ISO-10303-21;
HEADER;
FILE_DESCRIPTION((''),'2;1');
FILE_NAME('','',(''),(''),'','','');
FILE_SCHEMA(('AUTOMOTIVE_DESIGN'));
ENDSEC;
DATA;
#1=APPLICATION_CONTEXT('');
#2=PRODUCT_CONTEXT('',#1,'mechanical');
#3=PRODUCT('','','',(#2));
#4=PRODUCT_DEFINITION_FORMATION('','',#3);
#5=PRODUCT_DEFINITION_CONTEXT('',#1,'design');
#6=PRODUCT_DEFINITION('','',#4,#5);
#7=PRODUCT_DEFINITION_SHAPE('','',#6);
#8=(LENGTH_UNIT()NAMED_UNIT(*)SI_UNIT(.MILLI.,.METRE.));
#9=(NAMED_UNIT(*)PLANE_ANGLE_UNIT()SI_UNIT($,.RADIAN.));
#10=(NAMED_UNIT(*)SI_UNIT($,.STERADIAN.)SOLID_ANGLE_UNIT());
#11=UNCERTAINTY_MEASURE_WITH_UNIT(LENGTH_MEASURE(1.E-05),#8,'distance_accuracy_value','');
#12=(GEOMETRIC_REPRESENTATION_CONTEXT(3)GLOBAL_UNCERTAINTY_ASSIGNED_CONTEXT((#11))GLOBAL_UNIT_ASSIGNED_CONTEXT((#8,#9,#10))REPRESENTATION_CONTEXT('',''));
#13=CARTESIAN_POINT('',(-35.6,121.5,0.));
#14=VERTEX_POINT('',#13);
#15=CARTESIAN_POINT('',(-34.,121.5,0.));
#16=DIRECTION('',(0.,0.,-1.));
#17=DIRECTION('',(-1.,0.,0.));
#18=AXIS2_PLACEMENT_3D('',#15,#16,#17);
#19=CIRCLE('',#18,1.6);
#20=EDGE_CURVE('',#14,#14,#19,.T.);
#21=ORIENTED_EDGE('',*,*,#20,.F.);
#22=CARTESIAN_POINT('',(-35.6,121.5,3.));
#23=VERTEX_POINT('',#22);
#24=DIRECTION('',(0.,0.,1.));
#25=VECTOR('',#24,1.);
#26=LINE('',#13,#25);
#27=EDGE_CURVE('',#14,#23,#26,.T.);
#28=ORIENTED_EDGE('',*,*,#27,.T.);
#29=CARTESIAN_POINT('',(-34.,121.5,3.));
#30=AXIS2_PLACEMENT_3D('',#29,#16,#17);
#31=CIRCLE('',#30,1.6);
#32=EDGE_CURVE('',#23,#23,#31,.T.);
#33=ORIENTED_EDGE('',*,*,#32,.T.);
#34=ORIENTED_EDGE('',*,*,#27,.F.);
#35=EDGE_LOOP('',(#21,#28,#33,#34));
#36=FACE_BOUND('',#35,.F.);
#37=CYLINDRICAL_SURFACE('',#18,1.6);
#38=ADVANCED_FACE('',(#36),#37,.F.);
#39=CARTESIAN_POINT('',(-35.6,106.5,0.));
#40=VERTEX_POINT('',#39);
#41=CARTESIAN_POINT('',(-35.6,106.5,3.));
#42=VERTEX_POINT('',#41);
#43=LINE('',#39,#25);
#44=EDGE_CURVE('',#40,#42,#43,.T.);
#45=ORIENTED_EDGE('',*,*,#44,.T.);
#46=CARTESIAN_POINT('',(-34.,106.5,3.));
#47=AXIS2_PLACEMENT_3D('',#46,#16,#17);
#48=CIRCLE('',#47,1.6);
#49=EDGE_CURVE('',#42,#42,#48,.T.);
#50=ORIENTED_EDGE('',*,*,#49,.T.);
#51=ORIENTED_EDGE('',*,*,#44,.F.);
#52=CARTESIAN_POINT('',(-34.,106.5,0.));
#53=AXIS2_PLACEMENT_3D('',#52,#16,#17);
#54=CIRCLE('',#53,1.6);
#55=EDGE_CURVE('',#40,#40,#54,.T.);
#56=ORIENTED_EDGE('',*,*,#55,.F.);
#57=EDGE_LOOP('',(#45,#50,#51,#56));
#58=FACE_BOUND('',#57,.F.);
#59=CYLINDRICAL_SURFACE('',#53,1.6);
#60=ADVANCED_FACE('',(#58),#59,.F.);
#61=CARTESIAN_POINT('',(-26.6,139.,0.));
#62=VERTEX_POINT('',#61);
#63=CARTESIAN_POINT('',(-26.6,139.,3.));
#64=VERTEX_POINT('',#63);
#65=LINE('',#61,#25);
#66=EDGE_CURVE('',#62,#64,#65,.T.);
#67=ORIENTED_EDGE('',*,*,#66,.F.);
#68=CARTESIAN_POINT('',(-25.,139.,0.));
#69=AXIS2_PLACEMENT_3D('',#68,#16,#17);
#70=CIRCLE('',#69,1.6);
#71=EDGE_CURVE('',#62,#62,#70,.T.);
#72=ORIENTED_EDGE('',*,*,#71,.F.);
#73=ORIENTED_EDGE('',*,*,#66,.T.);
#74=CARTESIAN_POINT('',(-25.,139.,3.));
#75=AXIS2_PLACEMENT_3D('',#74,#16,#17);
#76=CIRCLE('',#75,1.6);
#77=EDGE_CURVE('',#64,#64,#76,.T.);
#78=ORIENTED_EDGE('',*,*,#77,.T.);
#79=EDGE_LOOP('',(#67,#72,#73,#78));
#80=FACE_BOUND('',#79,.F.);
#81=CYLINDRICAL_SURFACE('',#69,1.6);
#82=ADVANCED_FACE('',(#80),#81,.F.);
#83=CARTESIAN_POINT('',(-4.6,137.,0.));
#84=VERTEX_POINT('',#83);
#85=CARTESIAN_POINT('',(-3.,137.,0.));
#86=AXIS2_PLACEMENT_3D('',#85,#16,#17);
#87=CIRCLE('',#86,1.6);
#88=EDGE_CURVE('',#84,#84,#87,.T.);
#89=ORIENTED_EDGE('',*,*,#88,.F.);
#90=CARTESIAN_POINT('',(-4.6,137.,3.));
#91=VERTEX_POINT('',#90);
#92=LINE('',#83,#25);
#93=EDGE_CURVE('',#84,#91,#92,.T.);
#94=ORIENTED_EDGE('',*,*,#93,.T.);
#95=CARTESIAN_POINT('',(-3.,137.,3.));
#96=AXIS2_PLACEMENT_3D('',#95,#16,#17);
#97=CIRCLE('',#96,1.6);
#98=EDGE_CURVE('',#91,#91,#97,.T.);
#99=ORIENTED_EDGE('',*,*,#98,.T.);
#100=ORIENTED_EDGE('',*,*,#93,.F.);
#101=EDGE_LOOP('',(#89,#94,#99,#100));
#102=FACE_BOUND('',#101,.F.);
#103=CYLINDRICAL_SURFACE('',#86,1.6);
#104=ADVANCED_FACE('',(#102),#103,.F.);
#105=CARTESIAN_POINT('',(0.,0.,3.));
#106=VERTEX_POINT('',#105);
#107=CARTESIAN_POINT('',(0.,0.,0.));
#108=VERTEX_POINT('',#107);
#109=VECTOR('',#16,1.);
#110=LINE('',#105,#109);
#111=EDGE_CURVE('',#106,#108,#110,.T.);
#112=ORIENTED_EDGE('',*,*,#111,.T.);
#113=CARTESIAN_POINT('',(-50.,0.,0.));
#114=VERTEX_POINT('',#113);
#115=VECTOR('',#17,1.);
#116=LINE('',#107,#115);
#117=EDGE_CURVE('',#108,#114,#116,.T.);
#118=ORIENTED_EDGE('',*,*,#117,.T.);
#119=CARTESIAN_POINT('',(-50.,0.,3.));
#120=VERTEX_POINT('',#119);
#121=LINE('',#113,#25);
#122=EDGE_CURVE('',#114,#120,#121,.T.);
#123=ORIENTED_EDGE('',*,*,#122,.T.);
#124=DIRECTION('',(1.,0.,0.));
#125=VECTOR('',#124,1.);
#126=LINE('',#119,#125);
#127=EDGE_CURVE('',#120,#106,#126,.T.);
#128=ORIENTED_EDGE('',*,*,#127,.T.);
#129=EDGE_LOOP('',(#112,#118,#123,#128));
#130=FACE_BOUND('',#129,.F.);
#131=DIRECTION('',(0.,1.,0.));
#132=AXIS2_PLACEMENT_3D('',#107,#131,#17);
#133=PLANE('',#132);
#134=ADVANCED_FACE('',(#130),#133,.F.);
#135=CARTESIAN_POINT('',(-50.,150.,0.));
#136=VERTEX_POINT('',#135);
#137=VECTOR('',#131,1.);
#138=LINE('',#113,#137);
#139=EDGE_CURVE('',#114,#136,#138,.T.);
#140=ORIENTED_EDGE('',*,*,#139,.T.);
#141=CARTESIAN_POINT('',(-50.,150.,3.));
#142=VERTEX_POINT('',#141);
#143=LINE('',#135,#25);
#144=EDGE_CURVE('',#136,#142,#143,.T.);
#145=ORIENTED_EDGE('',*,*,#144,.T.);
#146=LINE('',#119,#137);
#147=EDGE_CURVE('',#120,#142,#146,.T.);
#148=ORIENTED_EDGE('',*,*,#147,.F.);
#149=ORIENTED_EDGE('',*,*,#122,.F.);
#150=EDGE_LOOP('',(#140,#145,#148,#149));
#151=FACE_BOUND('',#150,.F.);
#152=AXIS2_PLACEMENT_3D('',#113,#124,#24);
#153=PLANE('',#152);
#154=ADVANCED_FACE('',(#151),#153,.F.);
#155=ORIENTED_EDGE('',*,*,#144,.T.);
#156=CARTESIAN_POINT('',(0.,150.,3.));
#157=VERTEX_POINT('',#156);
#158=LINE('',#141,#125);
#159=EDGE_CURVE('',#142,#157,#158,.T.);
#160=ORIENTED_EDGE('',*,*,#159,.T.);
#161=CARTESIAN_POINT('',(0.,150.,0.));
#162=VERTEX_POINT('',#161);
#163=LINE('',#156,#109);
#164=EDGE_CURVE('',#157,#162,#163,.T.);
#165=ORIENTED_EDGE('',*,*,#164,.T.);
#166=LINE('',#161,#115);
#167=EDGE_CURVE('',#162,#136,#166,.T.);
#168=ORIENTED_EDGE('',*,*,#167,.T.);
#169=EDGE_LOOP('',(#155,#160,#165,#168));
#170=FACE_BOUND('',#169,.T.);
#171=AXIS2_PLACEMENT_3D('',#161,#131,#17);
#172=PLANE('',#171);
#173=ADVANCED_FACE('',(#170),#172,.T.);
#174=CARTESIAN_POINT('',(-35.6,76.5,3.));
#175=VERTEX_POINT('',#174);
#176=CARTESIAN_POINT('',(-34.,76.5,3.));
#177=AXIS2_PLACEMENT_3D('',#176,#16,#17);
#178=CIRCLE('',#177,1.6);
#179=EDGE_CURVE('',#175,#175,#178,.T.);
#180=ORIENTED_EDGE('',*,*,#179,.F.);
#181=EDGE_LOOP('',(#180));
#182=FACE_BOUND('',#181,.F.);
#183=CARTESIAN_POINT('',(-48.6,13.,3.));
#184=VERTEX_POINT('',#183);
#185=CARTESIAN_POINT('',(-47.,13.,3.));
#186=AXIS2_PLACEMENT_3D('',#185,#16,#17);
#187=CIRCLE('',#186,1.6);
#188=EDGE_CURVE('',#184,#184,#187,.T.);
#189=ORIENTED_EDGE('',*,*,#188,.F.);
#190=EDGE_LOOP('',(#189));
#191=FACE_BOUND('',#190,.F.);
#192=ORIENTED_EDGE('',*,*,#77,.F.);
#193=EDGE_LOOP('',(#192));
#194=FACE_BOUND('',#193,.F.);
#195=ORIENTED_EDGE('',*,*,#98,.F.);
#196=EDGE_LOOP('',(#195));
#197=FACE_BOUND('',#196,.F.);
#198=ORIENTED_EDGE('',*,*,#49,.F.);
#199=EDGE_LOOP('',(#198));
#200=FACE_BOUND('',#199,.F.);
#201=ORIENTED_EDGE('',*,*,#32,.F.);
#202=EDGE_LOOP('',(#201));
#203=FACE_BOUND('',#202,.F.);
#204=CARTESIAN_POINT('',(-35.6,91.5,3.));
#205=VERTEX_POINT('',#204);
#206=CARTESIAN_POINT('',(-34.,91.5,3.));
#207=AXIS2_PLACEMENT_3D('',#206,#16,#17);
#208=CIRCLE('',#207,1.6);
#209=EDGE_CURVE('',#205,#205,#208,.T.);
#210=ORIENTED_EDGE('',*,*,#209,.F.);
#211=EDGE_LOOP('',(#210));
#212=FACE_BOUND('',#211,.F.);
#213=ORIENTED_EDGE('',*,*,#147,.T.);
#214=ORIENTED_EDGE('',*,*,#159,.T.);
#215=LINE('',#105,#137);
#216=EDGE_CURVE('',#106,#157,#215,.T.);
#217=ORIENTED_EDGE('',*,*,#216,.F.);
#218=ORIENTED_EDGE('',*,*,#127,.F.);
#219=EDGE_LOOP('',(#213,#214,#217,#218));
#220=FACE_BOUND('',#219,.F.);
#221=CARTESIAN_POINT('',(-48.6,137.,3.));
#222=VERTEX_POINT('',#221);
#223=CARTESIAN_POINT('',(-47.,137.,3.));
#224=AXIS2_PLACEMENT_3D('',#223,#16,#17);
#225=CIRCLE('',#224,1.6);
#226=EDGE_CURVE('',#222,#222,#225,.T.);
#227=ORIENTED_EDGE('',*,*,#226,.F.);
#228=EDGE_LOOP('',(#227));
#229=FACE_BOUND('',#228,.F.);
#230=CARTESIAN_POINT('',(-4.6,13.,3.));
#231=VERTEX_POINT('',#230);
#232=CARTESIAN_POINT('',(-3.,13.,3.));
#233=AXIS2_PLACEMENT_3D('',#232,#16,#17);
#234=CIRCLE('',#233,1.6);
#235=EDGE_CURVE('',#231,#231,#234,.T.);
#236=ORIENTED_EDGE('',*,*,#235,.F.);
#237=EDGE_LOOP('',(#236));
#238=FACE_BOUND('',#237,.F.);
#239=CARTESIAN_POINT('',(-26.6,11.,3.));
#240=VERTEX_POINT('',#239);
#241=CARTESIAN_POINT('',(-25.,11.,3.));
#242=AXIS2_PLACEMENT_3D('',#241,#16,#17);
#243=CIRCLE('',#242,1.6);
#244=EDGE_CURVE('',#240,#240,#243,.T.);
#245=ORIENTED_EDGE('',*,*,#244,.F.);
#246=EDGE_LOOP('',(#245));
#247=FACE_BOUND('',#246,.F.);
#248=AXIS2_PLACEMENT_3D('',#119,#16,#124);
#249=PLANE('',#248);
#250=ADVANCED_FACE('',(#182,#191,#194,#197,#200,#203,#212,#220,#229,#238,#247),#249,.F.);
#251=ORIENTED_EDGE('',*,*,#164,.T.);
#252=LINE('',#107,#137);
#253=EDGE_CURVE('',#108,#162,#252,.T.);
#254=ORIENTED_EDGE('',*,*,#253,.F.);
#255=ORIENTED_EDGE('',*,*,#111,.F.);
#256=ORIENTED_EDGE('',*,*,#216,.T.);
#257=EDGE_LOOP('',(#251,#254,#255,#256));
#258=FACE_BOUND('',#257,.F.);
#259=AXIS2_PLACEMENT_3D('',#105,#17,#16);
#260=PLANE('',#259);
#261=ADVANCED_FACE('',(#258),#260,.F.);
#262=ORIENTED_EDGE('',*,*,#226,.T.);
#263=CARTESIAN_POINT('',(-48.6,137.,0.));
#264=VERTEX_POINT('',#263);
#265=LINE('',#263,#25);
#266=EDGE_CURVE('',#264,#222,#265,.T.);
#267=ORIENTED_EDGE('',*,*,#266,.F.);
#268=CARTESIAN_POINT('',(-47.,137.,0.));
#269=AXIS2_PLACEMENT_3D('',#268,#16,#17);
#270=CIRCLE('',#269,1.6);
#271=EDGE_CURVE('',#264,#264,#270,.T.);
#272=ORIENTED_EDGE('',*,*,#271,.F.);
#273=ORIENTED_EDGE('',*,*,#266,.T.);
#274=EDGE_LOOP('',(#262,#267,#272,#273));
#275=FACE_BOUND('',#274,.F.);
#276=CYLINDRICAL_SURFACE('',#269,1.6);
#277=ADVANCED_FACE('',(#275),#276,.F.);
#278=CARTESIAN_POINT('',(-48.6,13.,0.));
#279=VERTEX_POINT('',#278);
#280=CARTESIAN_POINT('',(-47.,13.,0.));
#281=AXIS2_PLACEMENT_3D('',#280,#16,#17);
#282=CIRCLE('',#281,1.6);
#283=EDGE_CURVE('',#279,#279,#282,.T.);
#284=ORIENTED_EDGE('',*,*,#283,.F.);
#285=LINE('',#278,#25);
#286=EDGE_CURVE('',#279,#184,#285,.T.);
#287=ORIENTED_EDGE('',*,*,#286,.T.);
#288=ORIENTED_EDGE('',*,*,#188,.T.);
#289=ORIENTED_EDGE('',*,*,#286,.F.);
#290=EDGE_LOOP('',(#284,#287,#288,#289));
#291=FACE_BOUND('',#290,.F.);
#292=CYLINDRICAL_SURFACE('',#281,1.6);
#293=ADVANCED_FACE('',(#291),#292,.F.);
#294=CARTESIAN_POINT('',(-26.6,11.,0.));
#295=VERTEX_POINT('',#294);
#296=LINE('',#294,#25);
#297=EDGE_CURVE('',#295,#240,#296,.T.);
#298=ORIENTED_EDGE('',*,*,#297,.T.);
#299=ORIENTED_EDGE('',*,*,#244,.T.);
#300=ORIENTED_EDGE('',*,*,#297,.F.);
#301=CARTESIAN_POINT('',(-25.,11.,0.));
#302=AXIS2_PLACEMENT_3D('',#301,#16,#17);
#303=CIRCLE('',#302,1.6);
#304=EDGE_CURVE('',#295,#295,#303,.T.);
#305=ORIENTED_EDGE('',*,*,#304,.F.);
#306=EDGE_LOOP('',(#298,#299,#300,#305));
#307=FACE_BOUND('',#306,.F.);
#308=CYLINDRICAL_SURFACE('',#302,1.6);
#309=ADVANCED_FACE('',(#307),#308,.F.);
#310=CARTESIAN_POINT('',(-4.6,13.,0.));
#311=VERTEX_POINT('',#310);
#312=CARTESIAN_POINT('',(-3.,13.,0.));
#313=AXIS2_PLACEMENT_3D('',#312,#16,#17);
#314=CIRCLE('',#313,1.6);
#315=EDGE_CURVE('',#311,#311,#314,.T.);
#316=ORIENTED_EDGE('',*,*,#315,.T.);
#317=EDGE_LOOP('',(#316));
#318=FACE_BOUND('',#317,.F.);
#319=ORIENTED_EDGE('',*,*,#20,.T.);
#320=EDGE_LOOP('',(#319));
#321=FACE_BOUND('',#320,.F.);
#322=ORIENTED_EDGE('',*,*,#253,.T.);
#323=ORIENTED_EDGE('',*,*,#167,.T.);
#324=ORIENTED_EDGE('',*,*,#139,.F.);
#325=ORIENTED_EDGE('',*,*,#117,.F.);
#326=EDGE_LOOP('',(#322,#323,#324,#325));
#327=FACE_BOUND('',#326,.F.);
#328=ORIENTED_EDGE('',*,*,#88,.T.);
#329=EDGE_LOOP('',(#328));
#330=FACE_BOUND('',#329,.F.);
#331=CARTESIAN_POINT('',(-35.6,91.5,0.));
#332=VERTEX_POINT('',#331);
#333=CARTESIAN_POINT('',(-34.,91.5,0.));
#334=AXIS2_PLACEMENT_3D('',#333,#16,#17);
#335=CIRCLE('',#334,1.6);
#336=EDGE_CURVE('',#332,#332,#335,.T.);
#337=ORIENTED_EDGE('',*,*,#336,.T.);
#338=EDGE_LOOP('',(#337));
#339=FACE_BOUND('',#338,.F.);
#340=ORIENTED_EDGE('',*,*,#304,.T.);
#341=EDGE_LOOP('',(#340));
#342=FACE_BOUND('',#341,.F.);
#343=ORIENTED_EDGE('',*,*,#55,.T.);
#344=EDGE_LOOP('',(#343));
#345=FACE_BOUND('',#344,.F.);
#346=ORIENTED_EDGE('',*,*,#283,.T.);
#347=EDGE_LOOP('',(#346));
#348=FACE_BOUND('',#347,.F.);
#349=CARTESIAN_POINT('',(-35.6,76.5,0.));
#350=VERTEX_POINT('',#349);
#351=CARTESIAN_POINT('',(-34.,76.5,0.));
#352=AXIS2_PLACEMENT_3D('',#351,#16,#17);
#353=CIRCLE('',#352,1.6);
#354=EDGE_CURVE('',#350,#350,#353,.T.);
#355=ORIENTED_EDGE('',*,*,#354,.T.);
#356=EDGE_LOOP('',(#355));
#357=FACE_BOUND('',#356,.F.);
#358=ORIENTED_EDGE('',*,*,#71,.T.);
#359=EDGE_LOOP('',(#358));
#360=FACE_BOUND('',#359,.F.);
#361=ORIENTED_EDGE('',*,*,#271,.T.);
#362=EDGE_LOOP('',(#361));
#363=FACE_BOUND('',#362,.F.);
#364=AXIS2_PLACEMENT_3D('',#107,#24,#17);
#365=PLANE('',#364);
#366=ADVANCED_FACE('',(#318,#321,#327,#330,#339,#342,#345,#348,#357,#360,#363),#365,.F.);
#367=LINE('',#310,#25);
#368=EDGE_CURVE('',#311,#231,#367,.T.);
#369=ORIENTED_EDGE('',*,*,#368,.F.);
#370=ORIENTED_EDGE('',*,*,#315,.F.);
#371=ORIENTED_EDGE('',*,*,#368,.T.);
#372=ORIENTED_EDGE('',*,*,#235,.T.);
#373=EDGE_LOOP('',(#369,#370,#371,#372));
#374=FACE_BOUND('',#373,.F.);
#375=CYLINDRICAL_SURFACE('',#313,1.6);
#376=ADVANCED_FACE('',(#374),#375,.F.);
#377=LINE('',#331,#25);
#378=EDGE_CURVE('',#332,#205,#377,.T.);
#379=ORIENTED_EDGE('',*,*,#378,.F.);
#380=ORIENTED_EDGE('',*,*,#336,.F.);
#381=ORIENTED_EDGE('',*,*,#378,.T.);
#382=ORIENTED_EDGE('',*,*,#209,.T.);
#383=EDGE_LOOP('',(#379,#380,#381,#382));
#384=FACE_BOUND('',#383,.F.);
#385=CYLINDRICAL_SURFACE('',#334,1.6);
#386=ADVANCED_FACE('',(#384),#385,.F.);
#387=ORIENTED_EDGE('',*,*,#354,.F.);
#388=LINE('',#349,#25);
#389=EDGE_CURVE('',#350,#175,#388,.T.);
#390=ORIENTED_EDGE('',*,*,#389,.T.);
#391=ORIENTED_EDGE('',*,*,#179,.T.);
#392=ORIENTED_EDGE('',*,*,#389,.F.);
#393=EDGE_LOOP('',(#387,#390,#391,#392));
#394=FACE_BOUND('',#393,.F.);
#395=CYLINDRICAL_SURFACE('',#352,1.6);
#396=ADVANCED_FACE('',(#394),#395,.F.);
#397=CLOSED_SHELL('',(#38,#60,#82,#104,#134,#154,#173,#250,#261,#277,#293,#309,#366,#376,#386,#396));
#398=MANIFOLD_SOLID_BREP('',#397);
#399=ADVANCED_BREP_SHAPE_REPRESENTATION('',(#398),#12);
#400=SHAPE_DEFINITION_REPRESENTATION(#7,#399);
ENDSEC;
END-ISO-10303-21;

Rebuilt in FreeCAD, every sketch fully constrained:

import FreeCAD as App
import Part
import Sketcher
from FreeCAD import Vector


def add_polygon(sketch, points):
    """Adds a closed chain of lines whose ends are joined by coincident constraints."""
    first, n = sketch.GeometryCount, len(points)
    for a, b in zip(points, points[1:] + points[:1]):
        sketch.addGeometry(Part.LineSegment(App.Vector(*a, 0), App.Vector(*b, 0)), False)
    for i in range(n):
        sketch.addConstraint(Sketcher.Constraint("Coincident", first + i, 2, first + (i + 1) % n, 1))

doc = App.newDocument("Part")
body = doc.addObject("PartDesign::Body", "Body")

sketch1 = body.newObject("Sketcher::SketchObject", "Sketch")
sketch1.AttachmentSupport = (doc.getObject("XZ_Plane"), [""])
sketch1.MapMode = "FlatFace"
add_polygon(sketch1, [(0, 3), (0, 0), (-50, 0), (-50, 3)])
sketch1.addConstraint([
    Sketcher.Constraint("Vertical", 0),
    Sketcher.Constraint("Horizontal", 1),
    Sketcher.Constraint("Vertical", 2),
    Sketcher.Constraint("Horizontal", 3),
    Sketcher.Constraint("Coincident", 0, 2, -1, 1),
    Sketcher.Constraint("DistanceX", 1, 2, 1, 1, 50.0),
    Sketcher.Constraint("DistanceY", 0, 2, 0, 1, 3.0),
])
pad1 = body.newObject("PartDesign::Pad", "Pad")
pad1.Profile = sketch1
pad1.Length = 150
pad1.Reversed = True

sketch2 = body.newObject("Sketcher::SketchObject", "Sketch001")
sketch2.AttachmentSupport = (doc.getObject("XY_Plane"), [""])
sketch2.MapMode = "FlatFace"
sketch2.addGeometry([
    Part.Circle(Vector(-3, 13, 0), Vector(0, 0, 1), 1.6),
    Part.Circle(Vector(-25, 11, 0), Vector(0, 0, 1), 1.6),
    Part.Circle(Vector(-47, 13, 0), Vector(0, 0, 1), 1.6),
    Part.Circle(Vector(-3, 137, 0), Vector(0, 0, 1), 1.6),
    Part.Circle(Vector(-25, 139, 0), Vector(0, 0, 1), 1.6),
    Part.Circle(Vector(-47, 137, 0), Vector(0, 0, 1), 1.6),
    Part.Circle(Vector(-34, 91.5, 0), Vector(0, 0, 1), 1.6),
    Part.Circle(Vector(-34, 106.5, 0), Vector(0, 0, 1), 1.6),
    Part.Circle(Vector(-34, 76.5, 0), Vector(0, 0, 1), 1.6),
    Part.Circle(Vector(-34, 121.5, 0), Vector(0, 0, 1), 1.6),
], False)
sketch2.addConstraint([
    Sketcher.Constraint("Equal", 0, 1),
    Sketcher.Constraint("Equal", 1, 2),
    Sketcher.Constraint("Equal", 2, 3),
    Sketcher.Constraint("Equal", 3, 4),
    Sketcher.Constraint("Equal", 4, 5),
    Sketcher.Constraint("Equal", 5, 6),
    Sketcher.Constraint("Equal", 6, 7),
    Sketcher.Constraint("Equal", 7, 8),
    Sketcher.Constraint("Equal", 8, 9),
    Sketcher.Constraint("Horizontal", 0, 3, 2, 3),
    Sketcher.Constraint("Horizontal", 3, 3, 5, 3),
    Sketcher.Constraint("Vertical", 0, 3, 3, 3),
    Sketcher.Constraint("Vertical", 1, 3, 4, 3),
    Sketcher.Constraint("Vertical", 2, 3, 5, 3),
    Sketcher.Constraint("Vertical", 6, 3, 7, 3),
    Sketcher.Constraint("Vertical", 7, 3, 8, 3),
    Sketcher.Constraint("Vertical", 8, 3, 9, 3),
    Sketcher.Constraint("Diameter", 0, 3.2),
    Sketcher.Constraint("DistanceY", 6, 3, 7, 3, 15.0),
    Sketcher.Constraint("DistanceY", 8, 3, 6, 3, 15.0),
    Sketcher.Constraint("DistanceY", 7, 3, 9, 3, 15.0),
    Sketcher.Constraint("DistanceX", 0, 3, -1, 1, 3.0),
    Sketcher.Constraint("DistanceY", -1, 1, 0, 3, 13.0),
    Sketcher.Constraint("DistanceX", 1, 3, -1, 1, 25.0),
    Sketcher.Constraint("DistanceY", -1, 1, 1, 3, 11.0),
    Sketcher.Constraint("DistanceX", 2, 3, -1, 1, 47.0),
    Sketcher.Constraint("DistanceY", -1, 1, 3, 3, 137.0),
    Sketcher.Constraint("DistanceY", -1, 1, 4, 3, 139.0),
    Sketcher.Constraint("DistanceX", 6, 3, -1, 1, 34.0),
    Sketcher.Constraint("DistanceY", -1, 1, 6, 3, 91.5),
])
pocket1 = body.newObject("PartDesign::Pocket", "Pocket")
pocket1.Profile = sketch2
pocket1.Length = 10
pocket1.Reversed = True

doc.recompute()
